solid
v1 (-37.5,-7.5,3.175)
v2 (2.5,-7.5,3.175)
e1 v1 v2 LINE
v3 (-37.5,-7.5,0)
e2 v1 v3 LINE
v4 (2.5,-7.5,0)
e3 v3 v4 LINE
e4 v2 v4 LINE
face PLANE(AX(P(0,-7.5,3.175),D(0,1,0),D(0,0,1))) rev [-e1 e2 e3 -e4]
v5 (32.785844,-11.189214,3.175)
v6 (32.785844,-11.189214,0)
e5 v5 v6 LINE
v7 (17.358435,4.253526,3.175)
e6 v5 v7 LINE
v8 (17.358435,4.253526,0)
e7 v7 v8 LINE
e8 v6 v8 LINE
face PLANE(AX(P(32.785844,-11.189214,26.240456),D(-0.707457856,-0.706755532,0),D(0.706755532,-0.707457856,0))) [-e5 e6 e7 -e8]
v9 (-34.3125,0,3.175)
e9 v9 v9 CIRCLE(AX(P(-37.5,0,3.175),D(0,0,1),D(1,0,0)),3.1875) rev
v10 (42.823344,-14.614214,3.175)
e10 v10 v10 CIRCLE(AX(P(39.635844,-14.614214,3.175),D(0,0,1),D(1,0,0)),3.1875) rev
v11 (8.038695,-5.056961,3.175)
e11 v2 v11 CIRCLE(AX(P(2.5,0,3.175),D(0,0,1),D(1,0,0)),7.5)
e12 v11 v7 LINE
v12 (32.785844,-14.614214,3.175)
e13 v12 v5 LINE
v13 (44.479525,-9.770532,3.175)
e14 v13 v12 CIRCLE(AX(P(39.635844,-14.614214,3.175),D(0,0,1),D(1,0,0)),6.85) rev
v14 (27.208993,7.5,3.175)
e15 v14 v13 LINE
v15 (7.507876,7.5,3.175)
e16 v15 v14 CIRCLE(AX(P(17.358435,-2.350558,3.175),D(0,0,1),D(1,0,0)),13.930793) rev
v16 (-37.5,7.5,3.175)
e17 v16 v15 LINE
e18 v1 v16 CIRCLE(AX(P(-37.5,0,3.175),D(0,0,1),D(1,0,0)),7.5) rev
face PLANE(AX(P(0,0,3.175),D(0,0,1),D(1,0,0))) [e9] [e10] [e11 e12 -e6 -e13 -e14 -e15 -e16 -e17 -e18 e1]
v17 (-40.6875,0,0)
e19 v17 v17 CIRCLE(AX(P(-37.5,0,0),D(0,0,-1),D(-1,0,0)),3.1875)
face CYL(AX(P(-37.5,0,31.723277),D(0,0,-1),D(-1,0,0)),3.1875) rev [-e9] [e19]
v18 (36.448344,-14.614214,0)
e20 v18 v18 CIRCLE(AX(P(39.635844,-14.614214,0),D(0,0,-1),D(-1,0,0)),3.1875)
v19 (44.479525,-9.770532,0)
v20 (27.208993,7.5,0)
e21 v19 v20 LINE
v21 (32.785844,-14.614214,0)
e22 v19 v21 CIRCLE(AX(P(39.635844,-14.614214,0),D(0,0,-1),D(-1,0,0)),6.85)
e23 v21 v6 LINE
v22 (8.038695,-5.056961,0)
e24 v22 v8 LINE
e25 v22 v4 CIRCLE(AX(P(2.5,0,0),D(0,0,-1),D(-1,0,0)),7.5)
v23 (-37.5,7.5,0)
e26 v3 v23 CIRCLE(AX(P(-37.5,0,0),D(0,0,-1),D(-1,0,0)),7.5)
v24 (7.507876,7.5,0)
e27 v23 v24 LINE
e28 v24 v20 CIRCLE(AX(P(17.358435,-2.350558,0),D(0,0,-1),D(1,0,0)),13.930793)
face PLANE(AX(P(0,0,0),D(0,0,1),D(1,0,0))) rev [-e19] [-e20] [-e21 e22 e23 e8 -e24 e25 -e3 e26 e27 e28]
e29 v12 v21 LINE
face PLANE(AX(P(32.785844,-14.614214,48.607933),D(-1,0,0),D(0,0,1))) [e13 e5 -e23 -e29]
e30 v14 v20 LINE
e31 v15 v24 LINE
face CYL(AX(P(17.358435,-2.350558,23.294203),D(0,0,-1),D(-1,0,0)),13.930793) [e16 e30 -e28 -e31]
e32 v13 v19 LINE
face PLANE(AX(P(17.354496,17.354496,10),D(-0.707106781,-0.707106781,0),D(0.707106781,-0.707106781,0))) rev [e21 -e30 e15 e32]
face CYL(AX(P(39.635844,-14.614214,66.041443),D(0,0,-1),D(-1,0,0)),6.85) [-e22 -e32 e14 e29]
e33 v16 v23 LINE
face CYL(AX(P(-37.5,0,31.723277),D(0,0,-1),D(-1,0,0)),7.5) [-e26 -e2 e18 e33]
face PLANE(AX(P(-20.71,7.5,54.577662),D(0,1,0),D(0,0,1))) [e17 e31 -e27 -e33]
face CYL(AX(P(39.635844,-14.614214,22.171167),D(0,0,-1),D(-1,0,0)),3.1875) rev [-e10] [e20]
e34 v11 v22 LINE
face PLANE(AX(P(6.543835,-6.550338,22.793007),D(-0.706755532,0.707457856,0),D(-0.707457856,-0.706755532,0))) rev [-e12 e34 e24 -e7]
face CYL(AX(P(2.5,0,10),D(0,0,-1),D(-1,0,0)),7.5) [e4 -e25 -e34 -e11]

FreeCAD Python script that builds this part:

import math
import FreeCAD as App
import Part
import Sketcher
Q = App.Units.Quantity

doc = App.newDocument("Part")
params = doc.addObject("Spreadsheet::Sheet", "Params")
for row, (alias, value) in enumerate([
    ("sketch1_diameter", "9.6 mm"),
    ("sketch1_radius", "7.5 mm"),
    ("sketch1_diameter2", "6.35 mm"),
    ("sketch1_width", "75 mm"),
    ("pad1_length", "3.175 mm"),
    ("sketch2_width", "15 mm"),
    ("sketch3_diameter", "6.35 mm"),
    ("sketch3_width", "4.29 mm"),
    ("pocket2_length", "10 mm"),
    ("pad2_length", "3.175 mm"),
    ("sketch5_diameter", "2.95 mm"),
    ("pocket3_length", "16 mm"),
    ("pad3_length", "3.175 mm"),
    ("sketch7_diameter", "9.6 mm"),
    ("sketch7_radius", "7.5 mm"),
    ("sketch7_width", "35 mm"),
    ("pocket4_length", "10 mm"),
    ("sketch8_radius", "25 mm"),
    ("sketch8_diameter", "9.7 mm"),
    ("sketch8_radius2", "7.5 mm"),
    ("sketch8_radius3", "6.85 mm"),
    ("pad4_length", "3.175 mm"),
    ("sketch9_radius", "7.5 mm"),
    ("pad5_length", "3.175 mm"),
    ("pad6_length", "3.175 mm"),
    ("pocket5_length", "10 mm"),
    ("sketch12_radius", "25 mm"),
    ("sketch12_radius2", "6.85 mm"),
    ("pocket6_length", "10 mm"),
    ("sketch13_height", "6.85 mm"),
    ("pad7_length", "3.175 mm"),
    ("pad8_length", "3.175 mm"),
    ("sketch15_radius", "7.5 mm"),
    ("pocket7_length", "10 mm"),
    ("sketch16_width", "10 mm"),
    ("pocket8_length", "10 mm"),
    ("pad9_length", "3.175 mm"),
    ("sketch18_radius", "6.85 mm"),
    ("sketch18_height", "6.85 mm"),
    ("pocket9_length", "10 mm"),
    ("sketch19_radius", "45 mm"),
    ("pocket10_length", "10 mm"),
    ("sketch20_radius", "7.5 mm"),
    ("pad10_length", "3.175 mm"),
    ("pocket11_length", "3.175 mm"),
    ("pad11_length", "3.175 mm"),
    ("pocket12_length", "3.175 mm"),
    ("pad12_length", "3.175 mm"),
    ("pad13_length", "3.175 mm"),
    ("sketch26_radius", "7.5 mm"),
    ("sketch26_width", "16.79 mm"),
    ("pad14_length", "3.175 mm"),
    ("pad15_length", "3.175 mm"),
], start=1):
    params.set(f"A{row}", alias)
    params.set(f"B{row}", "=" + value)
    params.setAlias(f"B{row}", alias)

body = doc.addObject("PartDesign::Body", "Body")

# Sketch on XY plane
sketch1 = doc.addObject("Sketcher::SketchObject", "Sketch")
body.addObject(sketch1)
sketch1.AttachmentSupport = (doc.XY_Plane, [""])
sketch1.MapMode = "FlatFace"
sketch1.addGeometry([
    Part.LineSegment(App.Vector(37.5, 7.5, 0), App.Vector(-37.5, 7.5, 0)),  # 0
    Part.ArcOfCircle(Part.Circle(App.Vector(-37.5, 0, 0), App.Vector(0, 0, 1), 7.5), math.radians(90), math.radians(270)),  # 1
    Part.LineSegment(App.Vector(-37.5, -7.5, 0), App.Vector(37.5, -7.5, 0)),  # 2
    Part.ArcOfCircle(Part.Circle(App.Vector(37.5, 0, 0), App.Vector(0, 0, 1), 7.5), math.radians(-90), math.radians(90)),  # 3
    Part.Circle(App.Vector(37.5, 0, 0), App.Vector(0, 0, 1), 4.8),  # 4
    Part.Circle(App.Vector(-37.5, 0, 0), App.Vector(0, 0, 1), 3.2),  # 5
], False)
sketch1.addConstraint([
    Sketcher.Constraint("Tangent", 0, 2, 1, 1),
    Sketcher.Constraint("Tangent", 1, 2, 2, 1),
    Sketcher.Constraint("Tangent", 2, 2, 3, 1),
    Sketcher.Constraint("Tangent", 3, 2, 0, 1),
    Sketcher.Constraint("Horizontal", 0),
    Sketcher.Constraint("Horizontal", 2),
    Sketcher.Constraint("Coincident", 4, 3, 3, 3),
    Sketcher.Constraint("Coincident", 5, 3, 1, 3),
    Sketcher.Constraint("Symmetric", 1, 3, 3, 3, -1, 1),
    Sketcher.Constraint("Diameter", 4, Q("9.6 mm")),
    Sketcher.Constraint("Radius", 1, Q("7.5 mm")),
    Sketcher.Constraint("Diameter", 5, Q("6.35 mm")),
    Sketcher.Constraint("DistanceX", 0, 2, 0, 1, Q("75 mm")),
])
sketch1.setExpression("Constraints[9]", "Params.sketch1_diameter")
sketch1.setExpression("Constraints[10]", "Params.sketch1_radius")
sketch1.setExpression("Constraints[11]", "Params.sketch1_diameter2")
sketch1.setExpression("Constraints[12]", "Params.sketch1_width")
pad1 = doc.addObject("PartDesign::Pad", "Pad")
body.addObject(pad1)
pad1.Profile = sketch1
pad1.setExpression("Length", "Params.pad1_length")

# Sketch on XY plane
sketch2 = doc.addObject("Sketcher::SketchObject", "Sketch001")
body.addObject(sketch2)
sketch2.AttachmentSupport = (doc.XY_Plane, [""])
sketch2.MapMode = "FlatFace"
sketch2.AttachmentOffset = App.Placement(App.Vector(0, 0, 3.175), App.Rotation())
sketch2.addGeometry([
    Part.LineSegment(App.Vector(-25, 1.8, 0), App.Vector(-25, -1.4, 0)),  # 0
    Part.LineSegment(App.Vector(-25, -1.4, 0), App.Vector(-10, -1.4, 0)),  # 1
    Part.LineSegment(App.Vector(-10, -1.4, 0), App.Vector(-10, 1.8, 0)),  # 2
    Part.LineSegment(App.Vector(-10, 1.8, 0), App.Vector(-25, 1.8, 0)),  # 3
    Part.LineSegment(App.Vector(10, 2.4, 0), App.Vector(10, -0.7, 0)),  # 4
    Part.LineSegment(App.Vector(10, -0.7, 0), App.Vector(25, -0.7, 0)),  # 5
    Part.LineSegment(App.Vector(25, -0.7, 0), App.Vector(25, 2.4, 0)),  # 6
    Part.LineSegment(App.Vector(25, 2.4, 0), App.Vector(10, 2.4, 0)),  # 7
], False)
sketch2.addConstraint([
    Sketcher.Constraint("Coincident", 0, 2, 1, 1),
    Sketcher.Constraint("Coincident", 1, 2, 2, 1),
    Sketcher.Constraint("Coincident", 2, 2, 3, 1),
    Sketcher.Constraint("Coincident", 3, 2, 0, 1),
    Sketcher.Constraint("Coincident", 4, 2, 5, 1),
    Sketcher.Constraint("Coincident", 5, 2, 6, 1),
    Sketcher.Constraint("Coincident", 6, 2, 7, 1),
    Sketcher.Constraint("Coincident", 7, 2, 4, 1),
    Sketcher.Constraint("Vertical", 0),
    Sketcher.Constraint("Horizontal", 1),
    Sketcher.Constraint("Vertical", 2),
    Sketcher.Constraint("Horizontal", 3),
    Sketcher.Constraint("Vertical", 4),
    Sketcher.Constraint("Horizontal", 5),
    Sketcher.Constraint("Vertical", 6),
    Sketcher.Constraint("Horizontal", 7),
    Sketcher.Constraint("Equal", 3, 5),
    Sketcher.Constraint("Equal", 2, 4),
    Sketcher.Constraint("DistanceX", 1, 1, 1, 2, Q("15 mm")),
    Sketcher.Constraint("DistanceX", 0, 2, -1, 1, Q("25 mm")),
    Sketcher.Constraint("DistanceX", -1, 1, 4, 2, Q("10 mm")),
    Sketcher.Constraint("DistanceY", 0, 2, 0, 1, Q("3.175 mm")),
    Sketcher.Constraint("DistanceY", 0, 2, -1, 1, Q("1.370463 mm")),
    Sketcher.Constraint("DistanceY", 4, 2, -1, 1, Q("0.734007 mm")),
])
sketch2.setExpression("Constraints[18]", "Params.sketch2_width")
pocket1 = doc.addObject("PartDesign::Pocket", "Pocket")
body.addObject(pocket1)
pocket1.Profile = sketch2
pocket1.Type = "ThroughAll"

# Sketch on XY plane
sketch3 = doc.addObject("Sketcher::SketchObject", "Sketch002")
body.addObject(sketch3)
sketch3.AttachmentSupport = (doc.XY_Plane, [""])
sketch3.MapMode = "FlatFace"
sketch3.AttachmentOffset = App.Placement(App.Vector(0, 0, -6.825), App.Rotation())
sketch3.addGeometry([
    Part.LineSegment(App.Vector(-20.7, 17.1, 0), App.Vector(-56.5, 17.1, 0)),  # 0
    Part.LineSegment(App.Vector(-56.5, 17.1, 0), App.Vector(-56.5, -10.2, 0)),  # 1
    Part.LineSegment(App.Vector(-56.5, -10.2, 0), App.Vector(-20.7, -10.2, 0)),  # 2
    Part.LineSegment(App.Vector(-20.7, -10.2, 0), App.Vector(-20.7, -1.4, 0)),  # 3
    Part.LineSegment(App.Vector(-20.7, -1.4, 0), App.Vector(-25, -1.4, 0)),  # 4
    Part.LineSegment(App.Vector(-25, -1.4, 0), App.Vector(-25, 1.8, 0)),  # 5
    Part.LineSegment(App.Vector(-25, 1.8, 0), App.Vector(-20.7, 1.8, 0)),  # 6
    Part.LineSegment(App.Vector(-20.7, 1.8, 0), App.Vector(-20.7, 17.1, 0)),  # 7
    Part.Circle(App.Vector(-37.5, 0, 0), App.Vector(0, 0, 1), 3.2),  # 8
], False)
sketch3.addConstraint([
    Sketcher.Constraint("Coincident", 0, 2, 1, 1),
    Sketcher.Constraint("Coincident", 1, 2, 2, 1),
    Sketcher.Constraint("Coincident", 2, 2, 3, 1),
    Sketcher.Constraint("Coincident", 3, 2, 4, 1),
    Sketcher.Constraint("Coincident", 4, 2, 5, 1),
    Sketcher.Constraint("Coincident", 5, 2, 6, 1),
    Sketcher.Constraint("Coincident", 6, 2, 7, 1),
    Sketcher.Constraint("Coincident", 7, 2, 0, 1),
    Sketcher.Constraint("Horizontal", 0),
    Sketcher.Constraint("Vertical", 1),
    Sketcher.Constraint("Horizontal", 2),
    Sketcher.Constraint("Vertical", 3),
    Sketcher.Constraint("Horizontal", 4),
    Sketcher.Constraint("Vertical", 5),
    Sketcher.Constraint("Horizontal", 6),
    Sketcher.Constraint("Vertical", 7),
    Sketcher.Constraint("PointOnObject", 8, 3, -1),
    Sketcher.Constraint("Vertical", 3, 2, 6, 2),
    Sketcher.Constraint("Diameter", 8, Q("6.35 mm")),
    Sketcher.Constraint("DistanceX", 4, 2, -1, 1, Q("25 mm")),
    Sketcher.Constraint("DistanceX", 4, 2, 4, 1, Q("4.29 mm")),
    Sketcher.Constraint("DistanceX", 8, 3, -1, 1, Q("37.5 mm")),
    Sketcher.Constraint("DistanceY", 5, 1, 5, 2, Q("3.175 mm")),
    Sketcher.Constraint("DistanceX", 0, 2, 0, 1, Q("35.795331 mm")),
    Sketcher.Constraint("DistanceY", 1, 2, 1, 1, Q("27.368315 mm")),
    Sketcher.Constraint("DistanceY", 3, 1, 3, 2, Q("8.869382 mm")),
    Sketcher.Constraint("DistanceY", -1, 1, 0, 2, Q("17.128469 mm")),
])
sketch3.setExpression("Constraints[18]", "Params.sketch3_diameter")
sketch3.setExpression("Constraints[20]", "Params.sketch3_width")
pocket2 = doc.addObject("PartDesign::Pocket", "Pocket001")
body.addObject(pocket2)
pocket2.Profile = sketch3
pocket2.setExpression("Length", "Params.pocket2_length")
pocket2.Reversed = True

# Sketch on XY plane
sketch4 = doc.addObject("Sketcher::SketchObject", "Sketch003")
body.addObject(sketch4)
sketch4.AttachmentSupport = (doc.XY_Plane, [""])
sketch4.MapMode = "FlatFace"
sketch4.AttachmentOffset = App.Placement(App.Vector(0, 0, 3.175), App.Rotation())
sketch4.addGeometry([
    Part.LineSegment(App.Vector(-21, 3, 0), App.Vector(-21, -3, 0)),
    Part.LineSegment(App.Vector(-21, -3, 0), App.Vector(-9, -3, 0)),
    Part.LineSegment(App.Vector(-9, -3, 0), App.Vector(-9, 3, 0)),
    Part.LineSegment(App.Vector(-9, 3, 0), App.Vector(-21, 3, 0)),
], False)
sketch4.addConstraint([
    Sketcher.Constraint("Coincident", 0, 2, 1, 1),
    Sketcher.Constraint("Coincident", 1, 2, 2, 1),
    Sketcher.Constraint("Coincident", 2, 2, 3, 1),
    Sketcher.Constraint("Coincident", 3, 2, 0, 1),
    Sketcher.Constraint("Vertical", 0),
    Sketcher.Constraint("Horizontal", 1),
    Sketcher.Constraint("Vertical", 2),
    Sketcher.Constraint("Horizontal", 3),
    Sketcher.Constraint("DistanceX", 0, 2, -1, 1, Q("20.71 mm")),
    Sketcher.Constraint("DistanceX", 1, 1, 1, 2, Q("11.581741 mm")),
    Sketcher.Constraint("DistanceY", 0, 2, 0, 1, Q("5.573186 mm")),
    Sketcher.Constraint("DistanceY", -1, 1, 2, 2, Q("2.656771 mm")),
])
pad2 = doc.addObject("PartDesign::Pad", "Pad001")
body.addObject(pad2)
pad2.Profile = sketch4
pad2.setExpression("Length", "Params.pad2_length")
pad2.Reversed = True

# Sketch on XY plane
sketch5 = doc.addObject("Sketcher::SketchObject", "Sketch004")
body.addObject(sketch5)
sketch5.AttachmentSupport = (doc.XY_Plane, [""])
sketch5.MapMode = "FlatFace"
sketch5.AttachmentOffset = App.Placement(App.Vector(0, 0, 3.175), App.Rotation())
sketch5.addGeometry([
    Part.Circle(App.Vector(-13.5, 0, 0), App.Vector(0, 0, 1), 1.5),
    Part.Circle(App.Vector(2.5, 0, 0), App.Vector(0, 0, 1), 1.5),
], False)
sketch5.addConstraint([
    Sketcher.Constraint("Equal", 0, 1),
    Sketcher.Constraint("PointOnObject", 0, 3, -1),
    Sketcher.Constraint("PointOnObject", 1, 3, -1),
    Sketcher.Constraint("Diameter", 0, Q("2.95 mm")),
    Sketcher.Constraint("DistanceX", 0, 3, 1, 3, Q("16 mm")),
    Sketcher.Constraint("DistanceX", 0, 3, -1, 1, Q("13.5 mm")),
])
sketch5.setExpression("Constraints[3]", "Params.sketch5_diameter")
pocket3 = doc.addObject("PartDesign::Pocket", "Pocket002")
body.addObject(pocket3)
pocket3.Profile = sketch5
pocket3.setExpression("Length", "Params.pocket3_length")

# Sketch on XY plane
sketch6 = doc.addObject("Sketcher::SketchObject", "Sketch005")
body.addObject(sketch6)
sketch6.AttachmentSupport = (doc.XY_Plane, [""])
sketch6.MapMode = "FlatFace"
sketch6.AttachmentOffset = App.Placement(App.Vector(0, 0, 3.175), App.Rotation())
sketch6.addGeometry([
    Part.LineSegment(App.Vector(8, 4, 0), App.Vector(8, -3, 0)),
    Part.LineSegment(App.Vector(8, -3, 0), App.Vector(30, -3, 0)),
    Part.LineSegment(App.Vector(30, -3, 0), App.Vector(30, 4, 0)),
    Part.LineSegment(App.Vector(30, 4, 0), App.Vector(8, 4, 0)),
], False)
sketch6.addConstraint([
    Sketcher.Constraint("Coincident", 0, 2, 1, 1),
    Sketcher.Constraint("Coincident", 1, 2, 2, 1),
    Sketcher.Constraint("Coincident", 2, 2, 3, 1),
    Sketcher.Constraint("Coincident", 3, 2, 0, 1),
    Sketcher.Constraint("Vertical", 0),
    Sketcher.Constraint("Horizontal", 1),
    Sketcher.Constraint("Vertical", 2),
    Sketcher.Constraint("Horizontal", 3),
    Sketcher.Constraint("DistanceX", 1, 1, 1, 2, Q("21.273259 mm")),
    Sketcher.Constraint("DistanceY", 0, 2, 0, 1, Q("7.40826 mm")),
    Sketcher.Constraint("DistanceY", -1, 1, 2, 2, Q("4.371899 mm")),
    Sketcher.Constraint("DistanceX", -1, 1, 0, 2, Q("8.270956 mm")),
])
pad3 = doc.addObject("PartDesign::Pad", "Pad002")
body.addObject(pad3)
pad3.Profile = sketch6
pad3.setExpression("Length", "Params.pad3_length")
pad3.Reversed = True

# Sketch on XY plane
sketch7 = doc.addObject("Sketcher::SketchObject", "Sketch006")
body.addObject(sketch7)
sketch7.AttachmentSupport = (doc.XY_Plane, [""])
sketch7.MapMode = "FlatFace"
sketch7.addGeometry([
    Part.LineSegment(App.Vector(2.5, 7.5, 0), App.Vector(37.5, 7.5, 0)),  # 0
    Part.ArcOfCircle(Part.Circle(App.Vector(37.5, 0, 0), App.Vector(0, 0, 1), 7.5), math.radians(-90), math.radians(90)),  # 1
    Part.LineSegment(App.Vector(37.5, -7.5, 0), App.Vector(2.5, -7.5, 0)),  # 2
    Part.ArcOfCircle(Part.Circle(App.Vector(2.5, 0, 0), App.Vector(0, 0, 1), 7.5), math.radians(-90), math.radians(90)),  # 3
    Part.Circle(App.Vector(37.5, 0, 0), App.Vector(0, 0, 1), 4.8),  # 4
], False)
sketch7.addConstraint([
    Sketcher.Constraint("Tangent", 0, 2, 1, 2),
    Sketcher.Constraint("Tangent", 1, 1, 2, 1),
    Sketcher.Constraint("Tangent", 2, 2, 3, 1),
    Sketcher.Constraint("Tangent", 3, 2, 0, 1),
    Sketcher.Constraint("Horizontal", 0),
    Sketcher.Constraint("Horizontal", 2),
    Sketcher.Constraint("Coincident", 4, 3, 1, 3),
    Sketcher.Constraint("PointOnObject", 1, 3, -1),
    Sketcher.Constraint("Diameter", 4, Q("9.6 mm")),
    Sketcher.Constraint("Radius", 1, Q("7.5 mm")),
    Sketcher.Constraint("DistanceX", 0, 1, 0, 2, Q("35 mm")),
    Sketcher.Constraint("DistanceX", -1, 1, 1, 3, Q("37.5 mm")),
])
sketch7.setExpression("Constraints[8]", "Params.sketch7_diameter")
sketch7.setExpression("Constraints[9]", "Params.sketch7_radius")
sketch7.setExpression("Constraints[10]", "Params.sketch7_width")
pocket4 = doc.addObject("PartDesign::Pocket", "Pocket003")
body.addObject(pocket4)
pocket4.Profile = sketch7
pocket4.setExpression("Length", "Params.pocket4_length")
pocket4.Reversed = True

# Sketch on XY plane
sketch8 = doc.addObject("Sketcher::SketchObject", "Sketch007")
body.addObject(sketch8)
sketch8.AttachmentSupport = (doc.XY_Plane, [""])
sketch8.MapMode = "FlatFace"
sketch8.addGeometry([
    Part.ArcOfCircle(Part.Circle(App.Vector(39.64, -14.61, 0), App.Vector(0, 0, 1), 6.85), math.radians(135), math.radians(338)),  # 0
    Part.LineSegment(App.Vector(34.79, -9.77, 0), App.Vector(34.74, -9.72, 0)),  # 1
    Part.ArcOfCircle(Part.Circle(App.Vector(22.37, -4.86, 0), App.Vector(0, 0, 1), 13.29), math.radians(-21), math.radians(159)),  # 2
    Part.ArcOfCircle(Part.Circle(App.Vector(2.5, 0, 0), App.Vector(0, 0, 1), 7.5), math.radians(0), math.radians(90)),  # 3
    Part.ArcOfCircle(Part.Circle(App.Vector(24.39, -4.58, 0), App.Vector(0, 0, 1), 25), math.radians(-30), math.radians(151)),  # 4
    Part.Circle(App.Vector(39.64, -14.61, 0), App.Vector(0, 0, 1), 4.85),  # 5
], False)
sketch8.addConstraint([
    Sketcher.Constraint("Coincident", 0, 1, 1, 1),
    Sketcher.Constraint("Coincident", 1, 2, 2, 1),
    Sketcher.Constraint("Coincident", 2, 2, 3, 1),
    Sketcher.Constraint("Coincident", 3, 2, 4, 2),
    Sketcher.Constraint("Coincident", 4, 1, 0, 2),
    Sketcher.Constraint("Coincident", 5, 3, 0, 3),
    Sketcher.Constraint("PointOnObject", 3, 3, -1),
    Sketcher.Constraint("PointOnObject", 2, 2, -1),
    Sketcher.Constraint("Radius", 4, Q("25 mm")),
    Sketcher.Constraint("Diameter", 5, Q("9.7 mm")),
    Sketcher.Constraint("Radius", 3, Q("7.5 mm")),
    Sketcher.Constraint("Angle", 1, Q("135 deg")),
    Sketcher.Constraint("Radius", 0, Q("6.85 mm")),
    Sketcher.Constraint("DistanceX", -1, 1, 2, 2, Q("10 mm")),
    Sketcher.Constraint("DistanceX", -1, 1, 3, 2, Q("2.5 mm")),
    Sketcher.Constraint("Radius", 2, Q("13.290056 mm")),
    Sketcher.Constraint("DistanceY", 2, 3, -1, 1, Q("4.859098 mm")),
    Sketcher.Constraint("DistanceY", 1, 2, 2, 3, Q("4.859098 mm")),
    Sketcher.Constraint("DistanceX", -1, 1, 4, 1, Q("46.001929 mm")),
    Sketcher.Constraint("DistanceY", 4, 1, -1, 1, Q("17.143138 mm")),
    Sketcher.Constraint("DistanceX", 2, 3, 0, 3, Q("17.265931 mm")),
])
sketch8.setExpression("Constraints[8]", "Params.sketch8_radius")
sketch8.setExpression("Constraints[9]", "Params.sketch8_diameter")
sketch8.setExpression("Constraints[10]", "Params.sketch8_radius2")
sketch8.setExpression("Constraints[12]", "Params.sketch8_radius3")
pad4 = doc.addObject("PartDesign::Pad", "Pad003")
body.addObject(pad4)
pad4.Profile = sketch8
pad4.setExpression("Length", "Params.pad4_length")

# Sketch on XY plane
sketch9 = doc.addObject("Sketcher::SketchObject", "Sketch008")
body.addObject(sketch9)
sketch9.AttachmentSupport = (doc.XY_Plane, [""])
sketch9.MapMode = "FlatFace"
sketch9.addGeometry([
    Part.LineSegment(App.Vector(22, 8, 0), App.Vector(8, -5, 0)),
    Part.ArcOfCircle(Part.Circle(App.Vector(3, 0, 0), App.Vector(0, 0, 1), 7), math.radians(-45), math.radians(0)),
    Part.ArcOfCircle(Part.Circle(App.Vector(22, -5, 0), App.Vector(0, 0, 1), 13), math.radians(94), math.radians(159)),
], False)
sketch9.addConstraint([
    Sketcher.Constraint("Tangent", 0, 2, 1, 1),
    Sketcher.Constraint("Coincident", 1, 2, 2, 2),
    Sketcher.Constraint("Coincident", 2, 1, 0, 1),
    Sketcher.Constraint("PointOnObject", 1, 3, -1),
    Sketcher.Constraint("PointOnObject", 1, 2, -1),
    Sketcher.Constraint("Radius", 1, Q("7.5 mm")),
    Sketcher.Constraint("Angle", 0, Q("-135 deg")),
    Sketcher.Constraint("DistanceX", -1, 1, 1, 2, Q("10 mm")),
    Sketcher.Constraint("Radius", 2, Q("13.290056 mm")),
    Sketcher.Constraint("DistanceY", 2, 3, -1, 1, Q("4.859098 mm")),
])
sketch9.setExpression("Constraints[5]", "Params.sketch9_radius")
pad5 = doc.addObject("PartDesign::Pad", "Pad004")
body.addObject(pad5)
pad5.Profile = sketch9
pad5.setExpression("Length", "Params.pad5_length")

# Sketch on XY plane
sketch10 = doc.addObject("Sketcher::SketchObject", "Sketch009")
body.addObject(sketch10)
sketch10.AttachmentSupport = (doc.XY_Plane, [""])
sketch10.MapMode = "FlatFace"
sketch10.addGeometry([
    Part.LineSegment(App.Vector(19.1, 6, 0), App.Vector(20.8, 9.5, 0)),
    Part.LineSegment(App.Vector(20.8, 9.5, 0), App.Vector(23.5, 8.7, 0)),
    Part.ArcOfCircle(Part.Circle(App.Vector(26.9, -1.9, 0), App.Vector(0, 0, 1), 11.1), math.radians(-45), math.radians(108)),
    Part.LineSegment(App.Vector(34.8, -9.8, 0), App.Vector(19.1, 6, 0)),
], False)
sketch10.addConstraint([
    Sketcher.Constraint("Coincident", 0, 2, 1, 1),
    Sketcher.Constraint("Coincident", 1, 2, 2, 2),
    Sketcher.Constraint("Coincident", 2, 1, 3, 1),
    Sketcher.Constraint("Coincident", 3, 2, 0, 1),
    Sketcher.Constraint("Angle", 3, Q("135 deg")),
    Sketcher.Constraint("Radius", 2, Q("11.121408 mm")),
    Sketcher.Constraint("DistanceX", -1, 1, 2, 3, Q("26.928139 mm")),
    Sketcher.Constraint("DistanceY", 2, 3, -1, 1, Q("1.906509 mm")),
    Sketcher.Constraint("DistanceY", -1, 1, 0, 2, Q("9.519321 mm")),
    Sketcher.Constraint("DistanceX", 0, 2, 1, 2, Q("2.698161 mm")),
    Sketcher.Constraint("DistanceX", 1, 2, 2, 1, Q("11.338119 mm")),
    Sketcher.Constraint("DistanceY", 2, 1, 1, 2, Q("18.428889 mm")),
    Sketcher.Constraint("Distance", 0, Q("3.943164 mm")),
])
pad6 = doc.addObject("PartDesign::Pad", "Pad005")
body.addObject(pad6)
pad6.Profile = sketch10
pad6.setExpression("Length", "Params.pad6_length")

# Sketch on XY plane
sketch11 = doc.addObject("Sketcher::SketchObject", "Sketch010")
body.addObject(sketch11)
sketch11.AttachmentSupport = (doc.XY_Plane, [""])
sketch11.MapMode = "FlatFace"
sketch11.addGeometry([
    Part.LineSegment(App.Vector(49, -5, 0), App.Vector(24, 20, 0)),
    Part.LineSegment(App.Vector(24, 20, 0), App.Vector(31, 24, 0)),
    Part.LineSegment(App.Vector(31, 24, 0), App.Vector(55, 2, 0)),
    Part.LineSegment(App.Vector(55, 2, 0), App.Vector(49, -5, 0)),
], False)
sketch11.addConstraint([
    Sketcher.Constraint("Coincident", 0, 2, 1, 1),
    Sketcher.Constraint("Coincident", 1, 2, 2, 1),
    Sketcher.Constraint("Coincident", 2, 2, 3, 1),
    Sketcher.Constraint("Coincident", 3, 2, 0, 1),
    Sketcher.Constraint("Perpendicular", 2, 3),
    Sketcher.Constraint("Angle", 0, Q("135 deg")),
    Sketcher.Constraint("DistanceX", 0, 2, 3, 2, Q("25 mm")),
    Sketcher.Constraint("Distance", 2, Q("33.33961 mm")),
    Sketcher.Constraint("Distance", 3, Q("9.02154 mm")),
    Sketcher.Constraint("DistanceX", -1, 1, 1, 2, Q("30.567651 mm")),
    Sketcher.Constraint("DistanceX", -1, 1, 2, 2, Q("55.403942 mm")),
    Sketcher.Constraint("DistanceY", -1, 1, 2, 2, Q("2.136458 mm")),
])
pocket5 = doc.addObject("PartDesign::Pocket", "Pocket004")
body.addObject(pocket5)
pocket5.Profile = sketch11
pocket5.setExpression("Length", "Params.pocket5_length")
pocket5.Reversed = True

# Sketch on XY plane
sketch12 = doc.addObject("Sketcher::SketchObject", "Sketch011")
body.addObject(sketch12)
sketch12.AttachmentSupport = (doc.XY_Plane, [""])
sketch12.MapMode = "FlatFace"
sketch12.addGeometry([
    Part.ArcOfCircle(Part.Circle(App.Vector(40, -15, 0), App.Vector(0, 0, 1), 7), math.radians(-22), math.radians(45)),  # 0
    Part.LineSegment(App.Vector(44, -10, 0), App.Vector(16, 19, 0)),  # 1
    Part.ArcOfCircle(Part.Circle(App.Vector(24, -5, 0), App.Vector(0, 0, 1), 25), math.radians(90), math.radians(110)),  # 2
    Part.LineSegment(App.Vector(24, 20, 0), App.Vector(49, -5, 0)),  # 3
    Part.ArcOfCircle(Part.Circle(App.Vector(24, -5, 0), App.Vector(0, 0, 1), 25), math.radians(-30), math.radians(0)),  # 4
], False)
sketch12.addConstraint([
    Sketcher.Constraint("Tangent", 0, 2, 1, 1),
    Sketcher.Constraint("Coincident", 1, 2, 2, 2),
    Sketcher.Constraint("Coincident", 2, 1, 3, 1),
    Sketcher.Constraint("Coincident", 3, 2, 4, 2),
    Sketcher.Constraint("Coincident", 4, 1, 0, 1),
    Sketcher.Constraint("Coincident", 4, 3, 2, 3),
    Sketcher.Constraint("Equal", 2, 4),
    Sketcher.Constraint("Parallel", 1, 3),
    Sketcher.Constraint("Horizontal", 4, 3, 3, 2),
    Sketcher.Constraint("Vertical", 4, 3, 2, 1),
    Sketcher.Constraint("Radius", 2, Q("25 mm")),
    Sketcher.Constraint("Radius", 0, Q("6.85 mm")),
    Sketcher.Constraint("Distance", 1, Q("40.544931 mm")),
    Sketcher.Constraint("DistanceX", -1, 1, 1, 2, Q("15.80993 mm")),
    Sketcher.Constraint("DistanceX", -1, 1, 4, 1, Q("46.001929 mm")),
    Sketcher.Constraint("DistanceY", 4, 1, -1, 1, Q("17.143138 mm")),
])
sketch12.setExpression("Constraints[10]", "Params.sketch12_radius")
sketch12.setExpression("Constraints[11]", "Params.sketch12_radius2")
pocket6 = doc.addObject("PartDesign::Pocket", "Pocket005")
body.addObject(pocket6)
pocket6.Profile = sketch12
pocket6.setExpression("Length", "Params.pocket6_length")
pocket6.Reversed = True

# Sketch on XY plane
sketch13 = doc.addObject("Sketcher::SketchObject", "Sketch012")
body.addObject(sketch13)
sketch13.AttachmentSupport = (doc.XY_Plane, [""])
sketch13.MapMode = "FlatFace"
sketch13.addGeometry([
    Part.LineSegment(App.Vector(32.8, -14.6, 0), App.Vector(32.8, -7.8, 0)),  # 0
    Part.ArcOfCircle(Part.Circle(App.Vector(32.8, -11, 0), App.Vector(0, 0, 1), 3.2), math.radians(29), math.radians(90)),  # 1
    Part.LineSegment(App.Vector(35.6, -9.4, 0), App.Vector(32.8, -14.6, 0)),  # 2
    Part.LineSegment(App.Vector(46.5, -7.8, 0), App.Vector(46.5, -14.6, 0)),  # 3
    Part.LineSegment(App.Vector(46.5, -14.6, 0), App.Vector(15.8, 18.9, 0)),  # 4
    Part.LineSegment(App.Vector(15.8, 18.9, 0), App.Vector(46.5, -7.8, 0)),  # 5
], False)
sketch13.addConstraint([
    Sketcher.Constraint("Coincident", 0, 2, 1, 2),
    Sketcher.Constraint("Coincident", 1, 1, 2, 1),
    Sketcher.Constraint("Coincident", 2, 2, 0, 1),
    Sketcher.Constraint("Coincident", 3, 2, 4, 1),
    Sketcher.Constraint("Coincident", 4, 2, 5, 1),
    Sketcher.Constraint("Coincident", 5, 2, 3, 1),
    Sketcher.Constraint("Vertical", 0),
    Sketcher.Constraint("Vertical", 3),
    Sketcher.Constraint("Horizontal", 2, 2, 3, 2),
    Sketcher.Constraint("Horizontal", 0, 2, 5, 2),
    Sketcher.Constraint("Vertical", 1, 3, 0, 2),
    Sketcher.Constraint("DistanceY", 0, 1, 0, 2, Q("6.85 mm")),
    Sketcher.Constraint("DistanceX", 2, 2, 3, 2, Q("13.7 mm")),
    Sketcher.Constraint("Radius", 1, Q("3.197491 mm")),
    Sketcher.Constraint("Distance", 5, Q("40.64409 mm")),
    Sketcher.Constraint("DistanceX", -1, 1, 1, 1, Q("35.585841 mm")),
    Sketcher.Constraint("DistanceX", -1, 1, 4, 2, Q("15.80993 mm")),
    Sketcher.Constraint("DistanceY", 1, 3, 1, 1, Q("1.54401 mm")),
    Sketcher.Constraint("DistanceY", 1, 3, -1, 1, Q("10.961705 mm")),
])
sketch13.setExpression("Constraints[11]", "Params.sketch13_height")
pad7 = doc.addObject("PartDesign::Pad", "Pad006")
body.addObject(pad7)
pad7.Profile = sketch13
pad7.setExpression("Length", "Params.pad7_length")

# Sketch on XY plane
sketch14 = doc.addObject("Sketcher::SketchObject", "Sketch013")
body.addObject(sketch14)
sketch14.AttachmentSupport = (doc.XY_Plane, [""])
sketch14.MapMode = "FlatFace"
sketch14.addGeometry([
    Part.LineSegment(App.Vector(16, 19, 0), App.Vector(3, 5, 0)),
    Part.LineSegment(App.Vector(3, 5, 0), App.Vector(-21, 8, 0)),
    Part.ArcOfCircle(Part.Circle(App.Vector(12, -34, 0), App.Vector(0, 0, 1), 53), math.radians(86), math.radians(128)),
], False)
sketch14.addConstraint([
    Sketcher.Constraint("Coincident", 0, 2, 1, 1),
    Sketcher.Constraint("Coincident", 1, 2, 2, 2),
    Sketcher.Constraint("Coincident", 2, 1, 0, 1),
    Sketcher.Constraint("DistanceY", -1, 1, 1, 2, Q("7.5 mm")),
    Sketcher.Constraint("DistanceX", 1, 2, -1, 1, Q("20.71 mm")),
    Sketcher.Constraint("Radius", 2, Q("53.179803 mm")),
    Sketcher.Constraint("Distance", 1, Q("24.314822 mm")),
    Sketcher.Constraint("DistanceX", -1, 1, 2, 1, Q("15.80993 mm")),
    Sketcher.Constraint("DistanceY", 0, 2, 2, 1, Q("13.710741 mm")),
    Sketcher.Constraint("Distance", 0, Q("18.429588 mm")),
])
pad8 = doc.addObject("PartDesign::Pad", "Pad007")
body.addObject(pad8)
pad8.Profile = sketch14
pad8.setExpression("Length", "Params.pad8_length")

# Sketch on XY plane
sketch15 = doc.addObject("Sketcher::SketchObject", "Sketch014")
body.addObject(sketch15)
sketch15.AttachmentSupport = (doc.XY_Plane, [""])
sketch15.MapMode = "FlatFace"
sketch15.addGeometry([
    Part.ArcOfCircle(Part.Circle(App.Vector(2, 0, 0), App.Vector(0, 0, 1), 8), math.radians(-45), math.radians(79)),
    Part.LineSegment(App.Vector(4, 7, 0), App.Vector(19, 6, 0)),
    Part.LineSegment(App.Vector(19, 6, 0), App.Vector(8, -5, 0)),
], False)
sketch15.addConstraint([
    Sketcher.Constraint("Coincident", 0, 2, 1, 1),
    Sketcher.Constraint("Coincident", 1, 2, 2, 1),
    Sketcher.Constraint("Tangent", 2, 2, 0, 1),
    Sketcher.Constraint("PointOnObject", 0, 3, -1),
    Sketcher.Constraint("Radius", 0, Q("7.5 mm")),
    Sketcher.Constraint("Angle", 2, Q("-135 deg")),
    Sketcher.Constraint("DistanceX", -1, 1, 0, 3, Q("2.5 mm")),
    Sketcher.Constraint("DistanceY", 1, 2, 0, 2, Q("1.413528 mm")),
    Sketcher.Constraint("Distance", 1, Q("15.244966 mm")),
])
sketch15.setExpression("Constraints[4]", "Params.sketch15_radius")
pocket7 = doc.addObject("PartDesign::Pocket", "Pocket006")
body.addObject(pocket7)
pocket7.Profile = sketch15
pocket7.setExpression("Length", "Params.pocket7_length")
pocket7.Reversed = True

# Sketch on XY plane
sketch16 = doc.addObject("Sketcher::SketchObject", "Sketch015")
body.addObject(sketch16)
sketch16.AttachmentSupport = (doc.XY_Plane, [""])
sketch16.MapMode = "FlatFace"
sketch16.AttachmentOffset = App.Placement(App.Vector(0, 0, 3.175), App.Rotation())
sketch16.addGeometry([
    Part.LineSegment(App.Vector(14, 1.6, 0), App.Vector(14, -1.6, 0)),
    Part.LineSegment(App.Vector(14, -1.6, 0), App.Vector(24, -1.6, 0)),
    Part.LineSegment(App.Vector(24, -1.6, 0), App.Vector(24, 1.6, 0)),
    Part.LineSegment(App.Vector(24, 1.6, 0), App.Vector(14, 1.6, 0)),
], False)
sketch16.addConstraint([
    Sketcher.Constraint("Coincident", 0, 2, 1, 1),
    Sketcher.Constraint("Coincident", 1, 2, 2, 1),
    Sketcher.Constraint("Coincident", 2, 2, 3, 1),
    Sketcher.Constraint("Coincident", 3, 2, 0, 1),
    Sketcher.Constraint("Vertical", 0),
    Sketcher.Constraint("Horizontal", 1),
    Sketcher.Constraint("Vertical", 2),
    Sketcher.Constraint("Horizontal", 3),
    Sketcher.Constraint("DistanceX", 1, 1, 1, 2, Q("10 mm")),
    Sketcher.Constraint("DistanceX", -1, 1, 0, 2, Q("14 mm")),
    Sketcher.Constraint("DistanceY", 0, 2, 0, 1, Q("3.175 mm")),
    Sketcher.Constraint("DistanceY", 0, 2, -1, 1, Q("1.5875 mm")),
])
sketch16.setExpression("Constraints[8]", "Params.sketch16_width")
pocket8 = doc.addObject("PartDesign::Pocket", "Pocket007")
body.addObject(pocket8)
pocket8.Profile = sketch16
pocket8.setExpression("Length", "Params.pocket8_length")

# Sketch on XY plane
sketch17 = doc.addObject("Sketcher::SketchObject", "Sketch016")
body.addObject(sketch17)
sketch17.AttachmentSupport = (doc.XY_Plane, [""])
sketch17.MapMode = "FlatFace"
sketch17.addGeometry([
    Part.LineSegment(App.Vector(33, -8, 0), App.Vector(19, 6, 0)),
    Part.LineSegment(App.Vector(19, 6, 0), App.Vector(26, 2, 0)),
    Part.LineSegment(App.Vector(26, 2, 0), App.Vector(33, -8, 0)),
], False)
sketch17.addConstraint([
    Sketcher.Constraint("Coincident", 0, 2, 1, 1),
    Sketcher.Constraint("Coincident", 1, 2, 2, 1),
    Sketcher.Constraint("Coincident", 2, 2, 0, 1),
    Sketcher.Constraint("Angle", 0, Q("135 deg")),
    Sketcher.Constraint("Distance", 2, Q("11.799619 mm")),
    Sketcher.Constraint("DistanceX", -1, 1, 1, 2, Q("25.92498 mm")),
    Sketcher.Constraint("DistanceY", 1, 2, 0, 2, Q("4.121751 mm")),
    Sketcher.Constraint("DistanceX", 0, 2, 2, 2, Q("13.721728 mm")),
    Sketcher.Constraint("DistanceY", -1, 1, 0, 2, Q("5.957514 mm")),
])
pad9 = doc.addObject("PartDesign::Pad", "Pad008")
body.addObject(pad9)
pad9.Profile = sketch17
pad9.setExpression("Length", "Params.pad9_length")

# Sketch on XY plane
sketch18 = doc.addObject("Sketcher::SketchObject", "Sketch017")
body.addObject(sketch18)
sketch18.AttachmentSupport = (doc.XY_Plane, [""])
sketch18.MapMode = "FlatFace"
sketch18.addGeometry([
    Part.ArcOfCircle(Part.Circle(App.Vector(40, -15, 0), App.Vector(0, 0, 1), 7), math.radians(0), math.radians(45)),
    Part.LineSegment(App.Vector(44, -10, 0), App.Vector(16, 19, 0)),
    Part.LineSegment(App.Vector(16, 19, 0), App.Vector(46, -8, 0)),
    Part.LineSegment(App.Vector(46, -8, 0), App.Vector(46, -15, 0)),
], False)
sketch18.addConstraint([
    Sketcher.Constraint("Tangent", 0, 2, 1, 1),
    Sketcher.Constraint("Coincident", 1, 2, 2, 1),
    Sketcher.Constraint("Coincident", 2, 2, 3, 1),
    Sketcher.Constraint("Tangent", 3, 2, 0, 1),
    Sketcher.Constraint("Vertical", 3),
    Sketcher.Constraint("Angle", 1, Q("135 deg")),
    Sketcher.Constraint("Radius", 0, Q("6.85 mm")),
    Sketcher.Constraint("DistanceY", 3, 2, 3, 1, Q("6.85 mm")),
    Sketcher.Constraint("Distance", 1, Q("40.544931 mm")),
    Sketcher.Constraint("DistanceX", -1, 1, 1, 2, Q("15.80993 mm")),
    Sketcher.Constraint("DistanceY", 0, 3, -1, 1, Q("14.614214 mm")),
])
sketch18.setExpression("Constraints[6]", "Params.sketch18_radius")
sketch18.setExpression("Constraints[7]", "Params.sketch18_height")
pocket9 = doc.addObject("PartDesign::Pocket", "Pocket008")
body.addObject(pocket9)
pocket9.Profile = sketch18
pocket9.setExpression("Length", "Params.pocket9_length")
pocket9.Reversed = True

# Sketch on XY plane
sketch19 = doc.addObject("Sketcher::SketchObject", "Sketch018")
body.addObject(sketch19)
sketch19.AttachmentSupport = (doc.XY_Plane, [""])
sketch19.MapMode = "FlatFace"
sketch19.addGeometry([
    Part.ArcOfCircle(Part.Circle(App.Vector(4.463141, -29.780886, 0), App.Vector(0, 0, 1), 45), math.radians(64.398875), math.radians(123.76247)),
    Part.LineSegment(App.Vector(-20.545662, 7.629804, 0), App.Vector(-12.510466, 32.510755, 0)),
    Part.LineSegment(App.Vector(-12.510466, 32.510755, 0), App.Vector(24.462924, 21.153371, 0)),
    Part.LineSegment(App.Vector(24.462924, 21.153371, 0), App.Vector(23.907797, 10.801196, 0)),
], False)
sketch19.addConstraint([
    Sketcher.Constraint("Coincident", 0, 2, 1, 1),
    Sketcher.Constraint("Coincident", 1, 2, 2, 1),
    Sketcher.Constraint("Coincident", 2, 2, 3, 1),
    Sketcher.Constraint("Coincident", 3, 2, 0, 1),
    Sketcher.Constraint("Radius", 0, Q("45 mm")),
    Sketcher.Constraint("Distance", 2, Q("38.67844 mm")),
    Sketcher.Constraint("Distance", 3, Q("10.367049 mm")),
    Sketcher.Constraint("DistanceX", -1, 1, 0, 3, Q("4.463141 mm")),
    Sketcher.Constraint("DistanceY", -1, 1, 2, 2, Q("21.153371 mm")),
    Sketcher.Constraint("DistanceY", 0, 3, 0, 2, Q("37.41069 mm")),
    Sketcher.Constraint("DistanceY", 0, 2, 1, 2, Q("24.880951 mm")),
    Sketcher.Constraint("DistanceX", 1, 2, 2, 2, Q("36.97339 mm")),
    Sketcher.Constraint("DistanceY", 3, 2, 1, 2, Q("21.70956 mm")),
])
sketch19.setExpression("Constraints[4]", "Params.sketch19_radius")
pocket10 = doc.addObject("PartDesign::Pocket", "Pocket009")
body.addObject(pocket10)
pocket10.Profile = sketch19
pocket10.setExpression("Length", "Params.pocket10_length")
pocket10.Reversed = True

# Sketch on XY plane
sketch20 = doc.addObject("Sketcher::SketchObject", "Sketch019")
body.addObject(sketch20)
sketch20.AttachmentSupport = (doc.XY_Plane, [""])
sketch20.MapMode = "FlatFace"
sketch20.addGeometry([
    Part.ArcOfCircle(Part.Circle(App.Vector(2.5, 0, 0), App.Vector(0, 0, 1), 7.5), math.radians(-42), math.radians(-5)),
    Part.ArcOfCircle(Part.Circle(App.Vector(2.5, 0, 0), App.Vector(0, 0, 1), 7.5), math.radians(-5), math.radians(79)),
    Part.LineSegment(App.Vector(3.9, 7.4, 0), App.Vector(19.1, 6, 0)),
    Part.LineSegment(App.Vector(19.1, 6, 0), App.Vector(8, -5.1, 0)),
], False)
sketch20.addConstraint([
    Sketcher.Constraint("Tangent", 0, 2, 1, 1),
    Sketcher.Constraint("Coincident", 1, 2, 2, 1),
    Sketcher.Constraint("Coincident", 2, 2, 3, 1),
    Sketcher.Constraint("Coincident", 3, 2, 0, 1),
    Sketcher.Constraint("Equal", 0, 1),
    Sketcher.Constraint("PointOnObject", 0, 3, -1),
    Sketcher.Constraint("Radius", 0, Q("7.5 mm")),
    Sketcher.Constraint("DistanceX", -1, 1, 0, 3, Q("2.5 mm")),
    Sketcher.Constraint("Distance", 3, Q("15.584562 mm")),
    Sketcher.Constraint("DistanceX", -1, 1, 0, 2, Q("9.967691 mm")),
    Sketcher.Constraint("DistanceY", 3, 2, -1, 1, Q("5.056961 mm")),
    Sketcher.Constraint("DistanceY", 0, 2, 1, 2, Q("8.06645 mm")),
    Sketcher.Constraint("DistanceY", 0, 2, 2, 2, Q("6.652921 mm")),
])
sketch20.setExpression("Constraints[6]", "Params.sketch20_radius")
pad10 = doc.addObject("PartDesign::Pad", "Pad009")
body.addObject(pad10)
pad10.Profile = sketch20
pad10.setExpression("Length", "Params.pad10_length")

# Sketch on XY plane
sketch21 = doc.addObject("Sketcher::SketchObject", "Sketch020")
body.addObject(sketch21)
sketch21.AttachmentSupport = (doc.XY_Plane, [""])
sketch21.MapMode = "FlatFace"
sketch21.addGeometry([
    Part.LineSegment(App.Vector(24, 11, 0), App.Vector(-21, 8, 0)),
    Part.LineSegment(App.Vector(-21, 8, 0), App.Vector(-15, 17, 0)),
    Part.LineSegment(App.Vector(-15, 17, 0), App.Vector(11, 20, 0)),
    Part.LineSegment(App.Vector(11, 20, 0), App.Vector(24, 11, 0)),
], False)
sketch21.addConstraint([
    Sketcher.Constraint("Coincident", 0, 2, 1, 1),
    Sketcher.Constraint("Coincident", 1, 2, 2, 1),
    Sketcher.Constraint("Coincident", 2, 2, 3, 1),
    Sketcher.Constraint("Coincident", 3, 2, 0, 1),
    Sketcher.Constraint("DistanceY", -1, 1, 0, 2, Q("7.5 mm")),
    Sketcher.Constraint("DistanceX", 0, 2, -1, 1, Q("20.71 mm")),
    Sketcher.Constraint("DistanceX", 2, 2, 3, 2, Q("13.177401 mm")),
    Sketcher.Constraint("DistanceX", 1, 2, 2, 2, Q("25.888609 mm")),
    Sketcher.Constraint("DistanceY", 3, 2, 1, 2, Q("6.242329 mm")),
    Sketcher.Constraint("Distance", 0, Q("44.739756 mm")),
    Sketcher.Constraint("Distance", 1, Q("11.040888 mm")),
    Sketcher.Constraint("Distance", 2, Q("26.045567 mm")),
])
pocket11 = doc.addObject("PartDesign::Pocket", "Pocket010")
body.addObject(pocket11)
pocket11.Profile = sketch21
pocket11.setExpression("Length", "Params.pocket11_length")
pocket11.Reversed = True

# Sketch on XY plane
sketch22 = doc.addObject("Sketcher::SketchObject", "Sketch021")
body.addObject(sketch22)
sketch22.AttachmentSupport = (doc.XY_Plane, [""])
sketch22.MapMode = "FlatFace"
sketch22.addGeometry([
    Part.LineSegment(App.Vector(19.1, 6, 0), App.Vector(32.8, -7.8, 0)),
    Part.LineSegment(App.Vector(32.8, -7.8, 0), App.Vector(32.8, -11.2, 0)),
    Part.LineSegment(App.Vector(32.8, -11.2, 0), App.Vector(17.4, 4.3, 0)),
    Part.LineSegment(App.Vector(17.4, 4.3, 0), App.Vector(19.1, 6, 0)),
], False)
sketch22.addConstraint([
    Sketcher.Constraint("Coincident", 0, 2, 1, 1),
    Sketcher.Constraint("Coincident", 1, 2, 2, 1),
    Sketcher.Constraint("Coincident", 2, 2, 3, 1),
    Sketcher.Constraint("Coincident", 3, 2, 0, 1),
    Sketcher.Constraint("Vertical", 1),
    Sketcher.Constraint("Perpendicular", 2, 3),
    Sketcher.Constraint("Angle", 0, Q("-45 deg")),
    Sketcher.Constraint("DistanceY", 1, 2, 1, 1, Q("3.425 mm")),
    Sketcher.Constraint("Distance", 3, Q("2.411001 mm")),
    Sketcher.Constraint("DistanceX", 2, 2, 0, 2, Q("15.427409 mm")),
    Sketcher.Constraint("DistanceX", -1, 1, 0, 2, Q("32.785844 mm")),
    Sketcher.Constraint("DistanceY", 0, 2, -1, 1, Q("7.764214 mm")),
])
pad11 = doc.addObject("PartDesign::Pad", "Pad010")
body.addObject(pad11)
pad11.Profile = sketch22
pad11.setExpression("Length", "Params.pad11_length")

# Sketch on XY plane
sketch23 = doc.addObject("Sketcher::SketchObject", "Sketch022")
body.addObject(sketch23)
sketch23.AttachmentSupport = (doc.XY_Plane, [""])
sketch23.MapMode = "FlatFace"
sketch23.addGeometry([
    Part.LineSegment(App.Vector(30, 8, 0), App.Vector(-21, 8, 0)),
    Part.LineSegment(App.Vector(-21, 8, 0), App.Vector(24, 17, 0)),
    Part.LineSegment(App.Vector(24, 17, 0), App.Vector(30, 8, 0)),
], False)
sketch23.addConstraint([
    Sketcher.Constraint("Coincident", 0, 2, 1, 1),
    Sketcher.Constraint("Coincident", 1, 2, 2, 1),
    Sketcher.Constraint("Coincident", 2, 2, 0, 1),
    Sketcher.Constraint("Horizontal", 0),
    Sketcher.Constraint("DistanceY", -1, 1, 0, 2, Q("7.5 mm")),
    Sketcher.Constraint("DistanceX", 0, 2, -1, 1, Q("20.71 mm")),
    Sketcher.Constraint("DistanceY", -1, 1, 1, 2, Q("17.421002 mm")),
    Sketcher.Constraint("DistanceX", 0, 2, 0, 1, Q("50.436172 mm")),
    Sketcher.Constraint("DistanceX", -1, 1, 1, 2, Q("24.020649 mm")),
])
pocket12 = doc.addObject("PartDesign::Pocket", "Pocket011")
body.addObject(pocket12)
pocket12.Profile = sketch23
pocket12.setExpression("Length", "Params.pocket12_length")
pocket12.Reversed = True

# Sketch on XY plane
sketch24 = doc.addObject("Sketcher::SketchObject", "Sketch023")
body.addObject(sketch24)
sketch24.AttachmentSupport = (doc.XY_Plane, [""])
sketch24.MapMode = "FlatFace"
sketch24.addGeometry([
    Part.LineSegment(App.Vector(27, 8, 0), App.Vector(8, 8, 0)),
    Part.ArcOfCircle(Part.Circle(App.Vector(17, -2, 0), App.Vector(0, 0, 1), 14), math.radians(45), math.radians(135)),
], False)
sketch24.addConstraint([
    Sketcher.Constraint("Coincident", 0, 1, 1, 1),
    Sketcher.Constraint("Coincident", 1, 2, 0, 2),
    Sketcher.Constraint("Horizontal", 0),
    Sketcher.Constraint("DistanceY", -1, 1, 0, 1, Q("7.5 mm")),
    Sketcher.Constraint("Radius", 1, Q("13.930793 mm")),
    Sketcher.Constraint("DistanceX", 0, 2, 0, 1, Q("19.701117 mm")),
    Sketcher.Constraint("DistanceX", -1, 1, 1, 3, Q("17.358435 mm")),
])
pad12 = doc.addObject("PartDesign::Pad", "Pad011")
body.addObject(pad12)
pad12.Profile = sketch24
pad12.setExpression("Length", "Params.pad12_length")

# Sketch on XY plane
sketch25 = doc.addObject("Sketcher::SketchObject", "Sketch024")
body.addObject(sketch25)
sketch25.AttachmentSupport = (doc.XY_Plane, [""])
sketch25.MapMode = "FlatFace"
sketch25.addGeometry([
    Part.Circle(App.Vector(39.6, -14.6, 0), App.Vector(0, 0, 1), 6.7),
    Part.Circle(App.Vector(39.6, -14.6, 0), App.Vector(0, 0, 1), 3.2),
], False)
sketch25.addConstraint([
    Sketcher.Constraint("Coincident", 1, 3, 0, 3),
    Sketcher.Constraint("Diameter", 1, Q("6.375 mm")),
    Sketcher.Constraint("Diameter", 0, Q("13.432318 mm")),
    Sketcher.Constraint("DistanceX", -1, 1, 0, 3, Q("39.635844 mm")),
    Sketcher.Constraint("DistanceY", 0, 3, -1, 1, Q("14.614214 mm")),
])
pad13 = doc.addObject("PartDesign::Pad", "Pad012")
body.addObject(pad13)
pad13.Profile = sketch25
pad13.setExpression("Length", "Params.pad13_length")

# Sketch on XY plane
sketch26 = doc.addObject("Sketcher::SketchObject", "Sketch025")
body.addObject(sketch26)
sketch26.AttachmentSupport = (doc.XY_Plane, [""])
sketch26.MapMode = "FlatFace"
sketch26.addGeometry([
    Part.LineSegment(App.Vector(-37.5, 7.5, 0), App.Vector(-20.7, 7.5, 0)),  # 0
    Part.LineSegment(App.Vector(-20.7, 7.5, 0), App.Vector(-20.7, -7.5, 0)),  # 1
    Part.LineSegment(App.Vector(-20.7, -7.5, 0), App.Vector(-37.5, -7.5, 0)),  # 2
    Part.ArcOfCircle(Part.Circle(App.Vector(-37.5, 0, 0), App.Vector(0, 0, 1), 7.5), math.radians(90), math.radians(270)),  # 3
    Part.Circle(App.Vector(-37.5, 0, 0), App.Vector(0, 0, 1), 3.2),  # 4
], False)
sketch26.addConstraint([
    Sketcher.Constraint("Coincident", 0, 2, 1, 1),
    Sketcher.Constraint("Coincident", 1, 2, 2, 1),
    Sketcher.Constraint("Tangent", 2, 2, 3, 2),
    Sketcher.Constraint("Tangent", 3, 1, 0, 1),
    Sketcher.Constraint("Horizontal", 0),
    Sketcher.Constraint("Vertical", 1),
    Sketcher.Constraint("Horizontal", 2),
    Sketcher.Constraint("Coincident", 4, 3, 3, 3),
    Sketcher.Constraint("PointOnObject", 3, 3, -1),
    Sketcher.Constraint("Radius", 3, Q("7.5 mm")),
    Sketcher.Constraint("Diameter", 4, Q("6.375 mm")),
    Sketcher.Constraint("DistanceX", 0, 1, 0, 2, Q("16.79 mm")),
    Sketcher.Constraint("DistanceX", 3, 3, -1, 1, Q("37.5 mm")),
])
sketch26.setExpression("Constraints[9]", "Params.sketch26_radius")
sketch26.setExpression("Constraints[11]", "Params.sketch26_width")
pad14 = doc.addObject("PartDesign::Pad", "Pad013")
body.addObject(pad14)
pad14.Profile = sketch26
pad14.setExpression("Length", "Params.pad14_length")

# Sketch on XY plane
sketch27 = doc.addObject("Sketcher::SketchObject", "Sketch026")
body.addObject(sketch27)
sketch27.AttachmentSupport = (doc.XY_Plane, [""])
sketch27.MapMode = "FlatFace"
sketch27.addGeometry([
    Part.LineSegment(App.Vector(7.7, 0.6, 0), App.Vector(-2.6, -5.6, 0)),  # 0
    Part.LineSegment(App.Vector(-2.6, -5.6, 0), App.Vector(-22.4, -2.5, 0)),  # 1
    Part.LineSegment(App.Vector(-22.4, -2.5, 0), App.Vector(-20.2, 3.9, 0)),  # 2
    Part.LineSegment(App.Vector(-20.2, 3.9, 0), App.Vector(4.1, 3.9, 0)),  # 3
    Part.LineSegment(App.Vector(4.1, 3.9, 0), App.Vector(7.7, 0.6, 0)),  # 4
], False)
sketch27.addConstraint([
    Sketcher.Constraint("Coincident", 0, 2, 1, 1),
    Sketcher.Constraint("Coincident", 1, 2, 2, 1),
    Sketcher.Constraint("Coincident", 2, 2, 3, 1),
    Sketcher.Constraint("Coincident", 3, 2, 4, 1),
    Sketcher.Constraint("Coincident", 4, 2, 0, 1),
    Sketcher.Constraint("Horizontal", 3),
    Sketcher.Constraint("DistanceX", 3, 1, 3, 2, Q("24.286511 mm")),
    Sketcher.Constraint("DistanceY", -1, 1, 2, 2, Q("3.9443 mm")),
    Sketcher.Constraint("Distance", 2, Q("6.854149 mm")),
    Sketcher.Constraint("Distance", 4, Q("4.891691 mm")),
    Sketcher.Constraint("DistanceY", 0, 2, -1, 1, Q("5.62555 mm")),
    Sketcher.Constraint("DistanceX", -1, 1, 4, 2, Q("7.658948 mm")),
    Sketcher.Constraint("DistanceX", 1, 2, 0, 2, Q("19.783052 mm")),
    Sketcher.Constraint("DistanceY", 0, 2, 1, 2, Q("3.096128 mm")),
    Sketcher.Constraint("DistanceX", 0, 2, 4, 2, Q("10.29362 mm")),
])
pad15 = doc.addObject("PartDesign::Pad", "Pad014")
body.addObject(pad15)
pad15.Profile = sketch27
pad15.setExpression("Length", "Params.pad15_length")

doc.recompute()
